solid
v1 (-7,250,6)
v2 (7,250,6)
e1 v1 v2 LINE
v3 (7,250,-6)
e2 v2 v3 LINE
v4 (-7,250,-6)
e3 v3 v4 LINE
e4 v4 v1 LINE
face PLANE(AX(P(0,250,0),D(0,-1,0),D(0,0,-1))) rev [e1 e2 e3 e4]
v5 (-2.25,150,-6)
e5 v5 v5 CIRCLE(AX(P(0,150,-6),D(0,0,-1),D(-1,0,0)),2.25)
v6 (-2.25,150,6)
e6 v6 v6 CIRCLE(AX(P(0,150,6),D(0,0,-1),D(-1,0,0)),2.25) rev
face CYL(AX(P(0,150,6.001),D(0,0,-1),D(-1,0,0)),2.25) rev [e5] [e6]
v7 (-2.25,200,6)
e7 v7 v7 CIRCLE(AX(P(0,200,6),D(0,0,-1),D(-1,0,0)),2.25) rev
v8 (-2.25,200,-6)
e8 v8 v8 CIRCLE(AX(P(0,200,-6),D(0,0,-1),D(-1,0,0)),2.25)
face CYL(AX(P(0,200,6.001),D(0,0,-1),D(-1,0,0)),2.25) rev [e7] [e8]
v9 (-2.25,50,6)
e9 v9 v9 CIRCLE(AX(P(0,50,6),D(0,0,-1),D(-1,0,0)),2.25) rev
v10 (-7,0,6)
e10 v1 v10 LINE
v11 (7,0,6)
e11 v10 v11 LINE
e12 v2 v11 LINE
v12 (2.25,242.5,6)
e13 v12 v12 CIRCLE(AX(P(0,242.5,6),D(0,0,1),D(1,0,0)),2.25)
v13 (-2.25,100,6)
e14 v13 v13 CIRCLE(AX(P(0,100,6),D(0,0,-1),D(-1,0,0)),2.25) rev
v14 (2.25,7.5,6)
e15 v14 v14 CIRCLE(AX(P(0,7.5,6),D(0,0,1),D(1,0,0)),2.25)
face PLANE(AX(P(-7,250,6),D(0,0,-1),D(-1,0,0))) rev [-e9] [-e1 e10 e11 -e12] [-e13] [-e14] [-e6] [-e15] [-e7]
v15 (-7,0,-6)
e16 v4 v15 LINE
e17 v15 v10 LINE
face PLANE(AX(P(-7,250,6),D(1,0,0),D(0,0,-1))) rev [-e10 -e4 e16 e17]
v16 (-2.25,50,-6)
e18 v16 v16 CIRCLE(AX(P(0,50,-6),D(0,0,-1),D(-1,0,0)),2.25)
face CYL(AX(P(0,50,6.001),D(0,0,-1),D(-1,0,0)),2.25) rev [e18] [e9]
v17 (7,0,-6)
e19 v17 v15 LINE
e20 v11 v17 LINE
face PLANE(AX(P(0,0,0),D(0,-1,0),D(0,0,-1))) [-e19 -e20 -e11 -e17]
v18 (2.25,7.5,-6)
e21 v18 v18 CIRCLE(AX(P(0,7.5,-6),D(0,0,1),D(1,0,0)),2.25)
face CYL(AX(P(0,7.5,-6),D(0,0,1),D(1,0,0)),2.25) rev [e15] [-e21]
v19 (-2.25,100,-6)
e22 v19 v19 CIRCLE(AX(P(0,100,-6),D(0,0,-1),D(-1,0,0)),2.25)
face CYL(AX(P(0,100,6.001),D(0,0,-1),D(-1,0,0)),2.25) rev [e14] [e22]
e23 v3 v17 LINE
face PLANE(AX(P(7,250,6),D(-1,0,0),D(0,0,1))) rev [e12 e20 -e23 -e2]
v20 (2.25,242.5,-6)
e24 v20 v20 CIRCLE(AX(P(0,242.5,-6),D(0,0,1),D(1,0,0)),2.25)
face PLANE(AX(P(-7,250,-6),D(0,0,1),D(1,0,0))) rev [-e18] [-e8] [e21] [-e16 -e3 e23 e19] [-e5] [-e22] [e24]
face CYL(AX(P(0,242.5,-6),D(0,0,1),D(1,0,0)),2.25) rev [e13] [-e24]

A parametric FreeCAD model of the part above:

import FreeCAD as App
import Part
import Sketcher
from FreeCAD import Vector
Q = App.Units.Quantity


def add_polygon(sketch, points):
    """Adds a closed chain of lines whose ends are joined by coincident constraints."""
    first, n = sketch.GeometryCount, len(points)
    for a, b in zip(points, points[1:] + points[:1]):
        sketch.addGeometry(Part.LineSegment(App.Vector(*a, 0), App.Vector(*b, 0)), False)
    for i in range(n):
        sketch.addConstraint(Sketcher.Constraint("Coincident", first + i, 2, first + (i + 1) % n, 1))

doc = App.newDocument("Part")
body = doc.addObject("PartDesign::Body", "Body")

# Sketch on XZ plane
sketch1 = doc.addObject("Sketcher::SketchObject", "Sketch")
body.addObject(sketch1)
sketch1.AttachmentSupport = (doc.XZ_Plane, [""])
sketch1.MapMode = "FlatFace"
add_polygon(sketch1, [(-7, -6), (-7, 6), (7, 6), (7, -6)])  # lines 0-3
sketch1.addConstraint(Sketcher.Constraint("Vertical", 0))
sketch1.addConstraint(Sketcher.Constraint("Horizontal", 1))
sketch1.addConstraint(Sketcher.Constraint("Vertical", 2))
sketch1.addConstraint(Sketcher.Constraint("Horizontal", 3))
sketch1.addConstraint(Sketcher.Constraint("Symmetric", 0, 2, 2, 2, -1, 1))
sketch1.addConstraint(Sketcher.Constraint("DistanceX", 1, 1, 1, 2, Q("14 mm")))
sketch1.addConstraint(Sketcher.Constraint("DistanceY", 0, 1, 0, 2, Q("12 mm")))
pad1 = doc.addObject("PartDesign::Pad", "Pad")
body.addObject(pad1)
pad1.Profile = sketch1
pad1.Length = 250
pad1.Reversed = True

# Sketch on XY plane
sketch2 = doc.addObject("Sketcher::SketchObject", "Sketch001")
body.addObject(sketch2)
sketch2.AttachmentSupport = (doc.XY_Plane, [""])
sketch2.MapMode = "FlatFace"
sketch2.addGeometry(Part.Circle(Vector(0, 7.5, 0), Vector(0, 0, 1), 2.25), False)
sketch2.addGeometry(Part.Circle(Vector(0, 242.5, 0), Vector(0, 0, 1), 2.25), False)
sketch2.addConstraint(Sketcher.Constraint("Equal", 0, 1))
sketch2.addConstraint(Sketcher.Constraint("PointOnObject", 0, 3, -2))
sketch2.addConstraint(Sketcher.Constraint("PointOnObject", 1, 3, -2))
sketch2.addConstraint(Sketcher.Constraint("Diameter", 0, Q("4.5 mm")))
sketch2.addConstraint(Sketcher.Constraint("DistanceY", 0, 3, 1, 3, Q("235 mm")))
sketch2.addConstraint(Sketcher.Constraint("DistanceY", -1, 1, 0, 3, Q("7.5 mm")))
pocket1 = doc.addObject("PartDesign::Pocket", "Pocket")
body.addObject(pocket1)
pocket1.Profile = sketch2
pocket1.Length = 12
pocket1.Midplane = True

# Sketch on XY plane
sketch3 = doc.addObject("Sketcher::SketchObject", "Sketch002")
body.addObject(sketch3)
sketch3.AttachmentSupport = (doc.XY_Plane, [""])
sketch3.MapMode = "FlatFace"
sketch3.AttachmentOffset = App.Placement(Vector(0, 0, -6), App.Rotation())
sketch3.addGeometry(Part.Circle(Vector(0, 200, 0), Vector(0, 0, 1), 2.25), False)
sketch3.addConstraint(Sketcher.Constraint("PointOnObject", 0, 3, -2))
sketch3.addConstraint(Sketcher.Constraint("Diameter", 0, Q("4.5 mm")))
sketch3.addConstraint(Sketcher.Constraint("DistanceY", -1, 1, 0, 3, Q("200 mm")))
pocket2 = doc.addObject("PartDesign::Pocket", "Pocket001")
body.addObject(pocket2)
pocket2.Profile = sketch3
pocket2.Type = "UpToFirst"
pocket2.Reversed = True

# Sketch on XY plane
sketch4 = doc.addObject("Sketcher::SketchObject", "Sketch003")
body.addObject(sketch4)
sketch4.AttachmentSupport = (doc.XY_Plane, [""])
sketch4.MapMode = "FlatFace"
sketch4.AttachmentOffset = App.Placement(Vector(0, 0, -6), App.Rotation())
sketch4.addGeometry(Part.Circle(Vector(0, 150, 0), Vector(0, 0, 1), 2.25), False)
sketch4.addConstraint(Sketcher.Constraint("PointOnObject", 0, 3, -2))
sketch4.addConstraint(Sketcher.Constraint("Diameter", 0, Q("4.5 mm")))
sketch4.addConstraint(Sketcher.Constraint("DistanceY", -1, 1, 0, 3, Q("150 mm")))
pocket3 = doc.addObject("PartDesign::Pocket", "Pocket002")
body.addObject(pocket3)
pocket3.Profile = sketch4
pocket3.Type = "UpToFirst"
pocket3.Reversed = True

# Sketch on XY plane
sketch5 = doc.addObject("Sketcher::SketchObject", "Sketch004")
body.addObject(sketch5)
sketch5.AttachmentSupport = (doc.XY_Plane, [""])
sketch5.MapMode = "FlatFace"
sketch5.AttachmentOffset = App.Placement(Vector(0, 0, -6), App.Rotation())
sketch5.addGeometry(Part.Circle(Vector(0, 100, 0), Vector(0, 0, 1), 2.25), False)
sketch5.addConstraint(Sketcher.Constraint("PointOnObject", 0, 3, -2))
sketch5.addConstraint(Sketcher.Constraint("Diameter", 0, Q("4.5 mm")))
sketch5.addConstraint(Sketcher.Constraint("DistanceY", -1, 1, 0, 3, Q("100 mm")))
pocket4 = doc.addObject("PartDesign::Pocket", "Pocket003")
body.addObject(pocket4)
pocket4.Profile = sketch5
pocket4.Type = "UpToFirst"
pocket4.Reversed = True

# Sketch on XY plane
sketch6 = doc.addObject("Sketcher::SketchObject", "Sketch005")
body.addObject(sketch6)
sketch6.AttachmentSupport = (doc.XY_Plane, [""])
sketch6.MapMode = "FlatFace"
sketch6.AttachmentOffset = App.Placement(Vector(0, 0, -6), App.Rotation())
sketch6.addGeometry(Part.Circle(Vector(0, 50, 0), Vector(0, 0, 1), 2.25), False)
sketch6.addConstraint(Sketcher.Constraint("PointOnObject", 0, 3, -2))
sketch6.addConstraint(Sketcher.Constraint("Diameter", 0, Q("4.5 mm")))
sketch6.addConstraint(Sketcher.Constraint("DistanceY", -1, 1, 0, 3, Q("50 mm")))
pocket5 = doc.addObject("PartDesign::Pocket", "Pocket004")
body.addObject(pocket5)
pocket5.Profile = sketch6
pocket5.Type = "UpToFirst"
pocket5.Reversed = True

doc.recompute()
